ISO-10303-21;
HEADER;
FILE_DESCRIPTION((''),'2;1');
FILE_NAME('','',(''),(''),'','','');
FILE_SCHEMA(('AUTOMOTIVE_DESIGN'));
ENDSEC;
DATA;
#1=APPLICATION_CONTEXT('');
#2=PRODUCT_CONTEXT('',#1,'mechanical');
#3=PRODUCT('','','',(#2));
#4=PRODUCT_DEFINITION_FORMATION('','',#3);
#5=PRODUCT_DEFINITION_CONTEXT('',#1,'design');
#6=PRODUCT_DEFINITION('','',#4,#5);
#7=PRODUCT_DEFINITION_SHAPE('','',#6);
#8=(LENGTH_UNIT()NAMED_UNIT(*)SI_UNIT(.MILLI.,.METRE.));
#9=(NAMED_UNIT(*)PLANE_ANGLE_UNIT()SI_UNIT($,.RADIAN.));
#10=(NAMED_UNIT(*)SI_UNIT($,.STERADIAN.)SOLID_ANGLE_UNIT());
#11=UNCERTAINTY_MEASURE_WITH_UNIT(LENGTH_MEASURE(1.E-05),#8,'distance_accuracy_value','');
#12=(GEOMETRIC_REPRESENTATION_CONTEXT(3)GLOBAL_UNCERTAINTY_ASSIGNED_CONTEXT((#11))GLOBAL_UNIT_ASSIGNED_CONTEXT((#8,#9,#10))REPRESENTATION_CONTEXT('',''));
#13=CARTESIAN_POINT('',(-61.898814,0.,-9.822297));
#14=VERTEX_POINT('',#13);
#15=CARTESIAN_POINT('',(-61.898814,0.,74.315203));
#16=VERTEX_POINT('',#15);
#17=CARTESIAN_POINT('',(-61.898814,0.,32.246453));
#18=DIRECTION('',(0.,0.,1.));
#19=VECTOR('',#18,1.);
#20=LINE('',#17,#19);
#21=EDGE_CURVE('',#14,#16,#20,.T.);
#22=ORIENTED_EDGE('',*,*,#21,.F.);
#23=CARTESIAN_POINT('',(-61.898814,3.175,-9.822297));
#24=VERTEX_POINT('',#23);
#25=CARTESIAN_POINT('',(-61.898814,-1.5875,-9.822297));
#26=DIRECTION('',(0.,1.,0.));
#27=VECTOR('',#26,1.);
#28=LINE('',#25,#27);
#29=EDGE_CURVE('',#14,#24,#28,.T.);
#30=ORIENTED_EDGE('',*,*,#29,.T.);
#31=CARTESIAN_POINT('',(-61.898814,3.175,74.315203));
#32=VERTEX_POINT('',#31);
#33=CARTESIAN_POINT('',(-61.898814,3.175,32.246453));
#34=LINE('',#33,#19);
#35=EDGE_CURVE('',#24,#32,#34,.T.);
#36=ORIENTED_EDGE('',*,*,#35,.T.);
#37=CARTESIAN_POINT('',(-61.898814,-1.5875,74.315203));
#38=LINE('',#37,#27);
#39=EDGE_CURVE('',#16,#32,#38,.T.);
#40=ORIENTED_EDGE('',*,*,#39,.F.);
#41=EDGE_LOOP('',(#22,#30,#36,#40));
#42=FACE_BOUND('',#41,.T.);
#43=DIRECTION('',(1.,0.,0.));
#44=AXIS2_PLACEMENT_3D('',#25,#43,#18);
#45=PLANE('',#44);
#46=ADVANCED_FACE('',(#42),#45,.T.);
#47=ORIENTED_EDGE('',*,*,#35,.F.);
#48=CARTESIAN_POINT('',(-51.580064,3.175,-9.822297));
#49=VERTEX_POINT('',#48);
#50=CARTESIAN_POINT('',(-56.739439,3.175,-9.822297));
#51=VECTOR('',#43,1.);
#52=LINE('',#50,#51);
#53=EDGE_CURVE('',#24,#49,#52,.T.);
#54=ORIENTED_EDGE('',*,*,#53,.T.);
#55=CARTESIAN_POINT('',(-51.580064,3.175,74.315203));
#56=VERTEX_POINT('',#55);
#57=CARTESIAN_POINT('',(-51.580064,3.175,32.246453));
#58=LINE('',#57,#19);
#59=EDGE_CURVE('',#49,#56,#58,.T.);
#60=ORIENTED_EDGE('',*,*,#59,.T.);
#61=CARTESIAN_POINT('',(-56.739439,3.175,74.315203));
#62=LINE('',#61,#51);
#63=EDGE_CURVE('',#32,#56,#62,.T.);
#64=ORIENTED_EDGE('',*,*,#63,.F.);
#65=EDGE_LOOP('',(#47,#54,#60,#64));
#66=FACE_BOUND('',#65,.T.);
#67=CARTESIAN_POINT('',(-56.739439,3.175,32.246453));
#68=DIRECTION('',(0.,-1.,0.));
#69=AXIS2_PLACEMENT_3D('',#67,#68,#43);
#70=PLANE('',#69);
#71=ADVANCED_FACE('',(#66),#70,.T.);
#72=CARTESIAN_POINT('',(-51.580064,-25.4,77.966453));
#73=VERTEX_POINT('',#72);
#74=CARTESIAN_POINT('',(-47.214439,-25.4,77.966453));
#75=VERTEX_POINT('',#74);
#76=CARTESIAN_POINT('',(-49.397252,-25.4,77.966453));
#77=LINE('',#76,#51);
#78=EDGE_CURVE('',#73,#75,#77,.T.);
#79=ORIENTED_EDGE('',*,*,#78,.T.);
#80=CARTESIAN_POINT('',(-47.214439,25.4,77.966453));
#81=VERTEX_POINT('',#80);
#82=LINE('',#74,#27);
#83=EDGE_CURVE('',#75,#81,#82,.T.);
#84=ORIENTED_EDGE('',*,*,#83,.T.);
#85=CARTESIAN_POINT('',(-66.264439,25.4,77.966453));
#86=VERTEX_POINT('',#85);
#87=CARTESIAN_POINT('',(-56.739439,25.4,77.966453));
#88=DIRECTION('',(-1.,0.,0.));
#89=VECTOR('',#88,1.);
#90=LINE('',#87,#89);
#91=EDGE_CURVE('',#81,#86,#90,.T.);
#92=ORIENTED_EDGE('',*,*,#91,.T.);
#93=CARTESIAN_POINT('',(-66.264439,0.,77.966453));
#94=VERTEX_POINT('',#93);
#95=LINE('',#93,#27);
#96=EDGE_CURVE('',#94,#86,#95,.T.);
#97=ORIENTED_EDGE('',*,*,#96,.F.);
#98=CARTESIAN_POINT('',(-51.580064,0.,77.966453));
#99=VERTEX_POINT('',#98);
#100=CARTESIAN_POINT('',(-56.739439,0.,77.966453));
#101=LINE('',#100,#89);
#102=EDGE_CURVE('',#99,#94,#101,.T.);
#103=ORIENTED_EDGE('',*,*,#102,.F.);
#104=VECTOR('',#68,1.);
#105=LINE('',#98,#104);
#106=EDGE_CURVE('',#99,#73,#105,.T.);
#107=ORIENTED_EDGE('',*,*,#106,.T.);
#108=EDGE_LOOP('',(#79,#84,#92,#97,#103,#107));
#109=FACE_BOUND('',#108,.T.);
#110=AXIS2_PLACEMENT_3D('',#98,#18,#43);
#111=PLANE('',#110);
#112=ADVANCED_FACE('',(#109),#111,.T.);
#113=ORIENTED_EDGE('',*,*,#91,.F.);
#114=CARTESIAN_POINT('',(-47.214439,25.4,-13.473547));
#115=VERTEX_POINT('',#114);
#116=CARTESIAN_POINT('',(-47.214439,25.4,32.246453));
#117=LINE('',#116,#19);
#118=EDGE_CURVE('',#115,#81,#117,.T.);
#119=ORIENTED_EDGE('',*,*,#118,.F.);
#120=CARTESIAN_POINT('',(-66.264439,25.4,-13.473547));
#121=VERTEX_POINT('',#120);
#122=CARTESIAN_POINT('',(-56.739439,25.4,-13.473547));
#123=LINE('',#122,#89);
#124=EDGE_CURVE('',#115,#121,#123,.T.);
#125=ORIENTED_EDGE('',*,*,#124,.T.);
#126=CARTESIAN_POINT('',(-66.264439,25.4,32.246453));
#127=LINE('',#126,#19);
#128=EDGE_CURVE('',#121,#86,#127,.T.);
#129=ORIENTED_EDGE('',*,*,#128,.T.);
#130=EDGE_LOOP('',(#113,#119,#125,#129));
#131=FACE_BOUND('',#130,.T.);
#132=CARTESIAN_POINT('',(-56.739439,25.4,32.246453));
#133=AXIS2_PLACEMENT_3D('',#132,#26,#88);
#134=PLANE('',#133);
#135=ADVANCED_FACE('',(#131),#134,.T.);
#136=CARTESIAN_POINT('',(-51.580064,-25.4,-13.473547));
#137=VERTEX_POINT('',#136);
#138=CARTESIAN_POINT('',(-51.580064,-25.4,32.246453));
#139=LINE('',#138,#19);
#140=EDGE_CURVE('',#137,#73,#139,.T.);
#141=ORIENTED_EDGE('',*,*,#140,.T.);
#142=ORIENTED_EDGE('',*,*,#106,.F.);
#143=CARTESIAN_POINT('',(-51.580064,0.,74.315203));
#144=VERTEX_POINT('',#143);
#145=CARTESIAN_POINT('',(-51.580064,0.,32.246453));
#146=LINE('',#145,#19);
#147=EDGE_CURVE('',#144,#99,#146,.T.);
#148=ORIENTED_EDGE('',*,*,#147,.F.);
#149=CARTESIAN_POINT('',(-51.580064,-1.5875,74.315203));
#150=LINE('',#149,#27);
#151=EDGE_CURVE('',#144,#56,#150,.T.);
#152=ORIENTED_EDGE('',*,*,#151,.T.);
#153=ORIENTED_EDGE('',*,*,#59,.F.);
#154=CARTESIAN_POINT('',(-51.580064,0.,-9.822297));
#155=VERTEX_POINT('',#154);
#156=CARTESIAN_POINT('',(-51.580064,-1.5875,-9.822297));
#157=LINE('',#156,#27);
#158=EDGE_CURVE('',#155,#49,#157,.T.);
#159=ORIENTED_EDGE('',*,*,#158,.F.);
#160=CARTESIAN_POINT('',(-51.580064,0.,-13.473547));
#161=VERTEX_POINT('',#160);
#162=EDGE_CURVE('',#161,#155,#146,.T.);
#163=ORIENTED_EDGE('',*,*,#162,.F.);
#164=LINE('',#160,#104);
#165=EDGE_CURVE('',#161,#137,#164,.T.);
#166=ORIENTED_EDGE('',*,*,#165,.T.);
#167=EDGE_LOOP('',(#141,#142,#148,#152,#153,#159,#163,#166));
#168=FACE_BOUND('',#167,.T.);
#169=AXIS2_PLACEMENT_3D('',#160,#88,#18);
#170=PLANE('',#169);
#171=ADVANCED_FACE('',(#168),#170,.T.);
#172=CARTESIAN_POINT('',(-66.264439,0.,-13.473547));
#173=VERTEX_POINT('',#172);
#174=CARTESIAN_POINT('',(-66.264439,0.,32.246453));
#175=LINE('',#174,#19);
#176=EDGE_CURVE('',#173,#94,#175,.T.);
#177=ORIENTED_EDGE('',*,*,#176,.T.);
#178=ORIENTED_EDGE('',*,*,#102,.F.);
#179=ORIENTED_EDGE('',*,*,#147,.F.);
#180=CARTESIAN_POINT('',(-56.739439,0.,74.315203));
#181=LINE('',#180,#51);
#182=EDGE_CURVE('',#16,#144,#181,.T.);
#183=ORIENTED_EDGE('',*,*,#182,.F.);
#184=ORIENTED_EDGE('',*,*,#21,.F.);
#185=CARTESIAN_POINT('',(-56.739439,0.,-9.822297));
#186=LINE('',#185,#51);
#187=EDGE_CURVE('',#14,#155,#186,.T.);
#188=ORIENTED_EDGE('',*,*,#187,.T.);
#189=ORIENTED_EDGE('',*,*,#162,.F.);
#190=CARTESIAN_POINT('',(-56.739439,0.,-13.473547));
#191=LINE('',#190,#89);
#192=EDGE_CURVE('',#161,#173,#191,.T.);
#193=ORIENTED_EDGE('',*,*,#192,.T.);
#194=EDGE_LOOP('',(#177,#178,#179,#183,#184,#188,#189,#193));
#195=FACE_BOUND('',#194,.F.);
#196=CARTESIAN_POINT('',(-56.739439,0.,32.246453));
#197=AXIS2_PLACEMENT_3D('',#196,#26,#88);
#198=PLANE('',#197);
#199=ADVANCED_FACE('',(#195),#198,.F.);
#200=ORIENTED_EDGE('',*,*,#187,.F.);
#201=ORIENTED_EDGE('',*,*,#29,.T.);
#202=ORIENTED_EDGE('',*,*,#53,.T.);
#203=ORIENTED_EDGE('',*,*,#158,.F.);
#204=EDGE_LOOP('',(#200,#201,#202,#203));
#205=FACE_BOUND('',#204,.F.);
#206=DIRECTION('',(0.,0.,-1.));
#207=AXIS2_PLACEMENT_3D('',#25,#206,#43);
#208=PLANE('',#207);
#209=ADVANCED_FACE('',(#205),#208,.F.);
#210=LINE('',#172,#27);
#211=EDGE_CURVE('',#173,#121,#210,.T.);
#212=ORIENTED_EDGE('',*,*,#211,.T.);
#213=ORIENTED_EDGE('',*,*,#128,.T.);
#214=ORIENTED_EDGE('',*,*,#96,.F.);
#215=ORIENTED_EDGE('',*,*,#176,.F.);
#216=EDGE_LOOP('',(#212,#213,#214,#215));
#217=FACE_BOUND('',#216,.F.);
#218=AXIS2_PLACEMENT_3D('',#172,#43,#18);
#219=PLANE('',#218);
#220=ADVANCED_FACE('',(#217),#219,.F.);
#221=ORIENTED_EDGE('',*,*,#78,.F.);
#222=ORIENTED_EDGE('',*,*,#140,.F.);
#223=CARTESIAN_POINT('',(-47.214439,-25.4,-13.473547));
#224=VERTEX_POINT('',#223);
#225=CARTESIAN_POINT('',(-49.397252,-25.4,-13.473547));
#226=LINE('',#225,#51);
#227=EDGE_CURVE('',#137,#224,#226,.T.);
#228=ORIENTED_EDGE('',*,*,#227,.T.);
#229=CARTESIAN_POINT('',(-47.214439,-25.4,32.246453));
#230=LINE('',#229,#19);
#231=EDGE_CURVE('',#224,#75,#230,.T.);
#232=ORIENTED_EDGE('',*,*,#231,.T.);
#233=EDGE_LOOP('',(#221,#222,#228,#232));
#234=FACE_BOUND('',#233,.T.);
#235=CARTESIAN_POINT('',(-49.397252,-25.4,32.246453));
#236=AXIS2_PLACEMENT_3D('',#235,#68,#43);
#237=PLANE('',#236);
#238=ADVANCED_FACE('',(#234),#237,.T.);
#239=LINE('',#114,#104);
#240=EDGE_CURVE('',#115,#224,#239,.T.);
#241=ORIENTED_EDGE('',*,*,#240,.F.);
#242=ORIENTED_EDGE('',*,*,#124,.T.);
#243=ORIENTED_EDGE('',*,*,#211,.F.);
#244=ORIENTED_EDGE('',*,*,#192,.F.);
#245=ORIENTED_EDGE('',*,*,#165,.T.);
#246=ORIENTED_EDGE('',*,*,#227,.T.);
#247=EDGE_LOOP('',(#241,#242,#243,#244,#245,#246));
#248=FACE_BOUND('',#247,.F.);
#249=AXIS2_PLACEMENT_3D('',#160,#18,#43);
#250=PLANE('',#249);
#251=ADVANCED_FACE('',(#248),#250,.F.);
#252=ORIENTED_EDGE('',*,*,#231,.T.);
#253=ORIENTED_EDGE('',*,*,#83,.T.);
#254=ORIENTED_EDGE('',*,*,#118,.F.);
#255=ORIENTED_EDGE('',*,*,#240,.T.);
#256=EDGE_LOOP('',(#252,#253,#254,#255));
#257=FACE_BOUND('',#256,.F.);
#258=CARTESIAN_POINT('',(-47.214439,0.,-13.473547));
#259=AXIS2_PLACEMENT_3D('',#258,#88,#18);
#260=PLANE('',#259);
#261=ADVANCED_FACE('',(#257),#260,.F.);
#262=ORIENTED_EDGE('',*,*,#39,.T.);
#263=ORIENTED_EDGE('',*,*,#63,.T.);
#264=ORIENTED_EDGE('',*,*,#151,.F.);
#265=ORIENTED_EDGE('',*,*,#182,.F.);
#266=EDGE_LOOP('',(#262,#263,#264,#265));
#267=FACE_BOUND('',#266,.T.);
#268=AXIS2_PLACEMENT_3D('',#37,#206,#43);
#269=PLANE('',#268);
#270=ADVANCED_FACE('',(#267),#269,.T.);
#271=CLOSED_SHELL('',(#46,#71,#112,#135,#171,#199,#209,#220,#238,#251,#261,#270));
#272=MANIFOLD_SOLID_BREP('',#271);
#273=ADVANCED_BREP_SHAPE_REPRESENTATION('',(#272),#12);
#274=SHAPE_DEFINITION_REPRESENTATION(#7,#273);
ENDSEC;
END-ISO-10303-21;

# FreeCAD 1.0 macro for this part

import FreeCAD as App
import Part
import Sketcher
Q = App.Units.Quantity

doc = App.newDocument("Part")
params = doc.addObject("Spreadsheet::Sheet", "Params")
for row, (alias, value) in enumerate([
    ("sketch1_width", "0.40625 in"),
    ("sketch1_height", "3.3125 in"),
    ("pad1_length", "0.0625 in"),
    ("sketch2_height", "3.6 in"),
    ("sketch2_width", "0.75 in"),
    ("pad2_length", "1 in"),
    ("sketch3_width", "0.40625 in"),
    ("sketch3_height", "3.3125 in"),
    ("pocket1_length", "0.1875 in"),
    ("sketch4_height", "3.6 in"),
    ("sketch4_width", "0.171875 in"),
    ("pad3_length", "1 in"),
], start=1):
    params.set(f"A{row}", alias)
    params.set(f"B{row}", "=" + value)
    params.setAlias(f"B{row}", alias)

body = doc.addObject("PartDesign::Body", "Body")

# Sketch on XZ plane
sketch1 = doc.addObject("Sketcher::SketchObject", "Sketch")
body.addObject(sketch1)
sketch1.AttachmentSupport = (doc.XZ_Plane, [""])
sketch1.MapMode = "FlatFace"
sketch1.addGeometry([
    Part.LineSegment(App.Vector(-62, 74, 0), App.Vector(-62, -10, 0)),
    Part.LineSegment(App.Vector(-62, -10, 0), App.Vector(-52, -10, 0)),
    Part.LineSegment(App.Vector(-52, -10, 0), App.Vector(-52, 74, 0)),
    Part.LineSegment(App.Vector(-52, 74, 0), App.Vector(-62, 74, 0)),
], False)
sketch1.addConstraint([
    Sketcher.Constraint("Coincident", 0, 2, 1, 1),
    Sketcher.Constraint("Coincident", 1, 2, 2, 1),
    Sketcher.Constraint("Coincident", 2, 2, 3, 1),
    Sketcher.Constraint("Coincident", 3, 2, 0, 1),
    Sketcher.Constraint("Vertical", 0),
    Sketcher.Constraint("Horizontal", 1),
    Sketcher.Constraint("Vertical", 2),
    Sketcher.Constraint("Horizontal", 3),
    Sketcher.Constraint("DistanceX", 1, 1, 1, 2, Q("0.40625 in")),
    Sketcher.Constraint("DistanceY", 0, 2, 0, 1, Q("3.3125 in")),
    Sketcher.Constraint("DistanceX", 0, 2, -1, 1, Q("61.898814 mm")),
    Sketcher.Constraint("DistanceY", 0, 2, -1, 1, Q("9.822297 mm")),
])
sketch1.setExpression("Constraints[8]", "Params.sketch1_width")
sketch1.setExpression("Constraints[9]", "Params.sketch1_height")
pad1 = doc.addObject("PartDesign::Pad", "Pad")
body.addObject(pad1)
pad1.Profile = sketch1
pad1.setExpression("Length", "Params.pad1_length")

# Sketch on XZ plane
sketch2 = doc.addObject("Sketcher::SketchObject", "Sketch001")
body.addObject(sketch2)
sketch2.AttachmentSupport = (doc.XZ_Plane, [""])
sketch2.MapMode = "FlatFace"
sketch2.addGeometry([
    Part.LineSegment(App.Vector(-47, 78, 0), App.Vector(-47, -13, 0)),
    Part.LineSegment(App.Vector(-47, -13, 0), App.Vector(-66, -13, 0)),
    Part.LineSegment(App.Vector(-66, -13, 0), App.Vector(-66, 78, 0)),
    Part.LineSegment(App.Vector(-66, 78, 0), App.Vector(-47, 78, 0)),
], False)
sketch2.addConstraint([
    Sketcher.Constraint("Coincident", 0, 2, 1, 1),
    Sketcher.Constraint("Coincident", 1, 2, 2, 1),
    Sketcher.Constraint("Coincident", 2, 2, 3, 1),
    Sketcher.Constraint("Coincident", 3, 2, 0, 1),
    Sketcher.Constraint("Vertical", 0),
    Sketcher.Constraint("Horizontal", 1),
    Sketcher.Constraint("Vertical", 2),
    Sketcher.Constraint("Horizontal", 3),
    Sketcher.Constraint("DistanceY", 0, 2, 0, 1, Q("3.6 in")),
    Sketcher.Constraint("DistanceX", 1, 2, 1, 1, Q("0.75 in")),
    Sketcher.Constraint("DistanceX", 0, 2, -1, 1, Q("47.214439 mm")),
    Sketcher.Constraint("DistanceY", 0, 2, -1, 1, Q("13.473547 mm")),
])
sketch2.setExpression("Constraints[8]", "Params.sketch2_height")
sketch2.setExpression("Constraints[9]", "Params.sketch2_width")
pad2 = doc.addObject("PartDesign::Pad", "Pad001")
body.addObject(pad2)
pad2.Profile = sketch2
pad2.setExpression("Length", "Params.pad2_length")
pad2.Reversed = True

# Sketch on XZ plane
sketch3 = doc.addObject("Sketcher::SketchObject", "Sketch002")
body.addObject(sketch3)
sketch3.AttachmentSupport = (doc.XZ_Plane, [""])
sketch3.MapMode = "FlatFace"
sketch3.AttachmentOffset = App.Placement(App.Vector(0, 0, 0.0625 * 25.4), App.Rotation())
sketch3.addGeometry([
    Part.LineSegment(App.Vector(-62, 74, 0), App.Vector(-62, -10, 0)),
    Part.LineSegment(App.Vector(-62, -10, 0), App.Vector(-52, -10, 0)),
    Part.LineSegment(App.Vector(-52, -10, 0), App.Vector(-52, 74, 0)),
    Part.LineSegment(App.Vector(-52, 74, 0), App.Vector(-62, 74, 0)),
], False)
sketch3.addConstraint([
    Sketcher.Constraint("Coincident", 0, 2, 1, 1),
    Sketcher.Constraint("Coincident", 1, 2, 2, 1),
    Sketcher.Constraint("Coincident", 2, 2, 3, 1),
    Sketcher.Constraint("Coincident", 3, 2, 0, 1),
    Sketcher.Constraint("Vertical", 0),
    Sketcher.Constraint("Horizontal", 1),
    Sketcher.Constraint("Vertical", 2),
    Sketcher.Constraint("Horizontal", 3),
    Sketcher.Constraint("DistanceX", 1, 1, 1, 2, Q("0.40625 in")),
    Sketcher.Constraint("DistanceY", 0, 2, 0, 1, Q("3.3125 in")),
    Sketcher.Constraint("DistanceX", 0, 2, -1, 1, Q("61.898814 mm")),
    Sketcher.Constraint("DistanceY", 0, 2, -1, 1, Q("9.822297 mm")),
])
sketch3.setExpression("Constraints[8]", "Params.sketch3_width")
sketch3.setExpression("Constraints[9]", "Params.sketch3_height")
pocket1 = doc.addObject("PartDesign::Pocket", "Pocket")
body.addObject(pocket1)
pocket1.Profile = sketch3
pocket1.setExpression("Length", "Params.pocket1_length")

# Sketch on XZ plane
sketch4 = doc.addObject("Sketcher::SketchObject", "Sketch003")
body.addObject(sketch4)
sketch4.AttachmentSupport = (doc.XZ_Plane, [""])
sketch4.MapMode = "FlatFace"
sketch4.addGeometry([
    Part.LineSegment(App.Vector(-51.6, 78, 0), App.Vector(-51.6, -13.5, 0)),
    Part.LineSegment(App.Vector(-51.6, -13.5, 0), App.Vector(-47.2, -13.5, 0)),
    Part.LineSegment(App.Vector(-47.2, -13.5, 0), App.Vector(-47.2, 78, 0)),
    Part.LineSegment(App.Vector(-47.2, 78, 0), App.Vector(-51.6, 78, 0)),
], False)
sketch4.addConstraint([
    Sketcher.Constraint("Coincident", 0, 2, 1, 1),
    Sketcher.Constraint("Coincident", 1, 2, 2, 1),
    Sketcher.Constraint("Coincident", 2, 2, 3, 1),
    Sketcher.Constraint("Coincident", 3, 2, 0, 1),
    Sketcher.Constraint("Vertical", 0),
    Sketcher.Constraint("Horizontal", 1),
    Sketcher.Constraint("Vertical", 2),
    Sketcher.Constraint("Horizontal", 3),
    Sketcher.Constraint("DistanceY", 0, 2, 0, 1, Q("3.6 in")),
    Sketcher.Constraint("DistanceX", 1, 1, 1, 2, Q("0.171875 in")),
    Sketcher.Constraint("DistanceX", 1, 2, -1, 1, Q("47.214439 mm")),
    Sketcher.Constraint("DistanceY", 0, 2, -1, 1, Q("13.473547 mm")),
])
sketch4.setExpression("Constraints[8]", "Params.sketch4_height")
sketch4.setExpression("Constraints[9]", "Params.sketch4_width")
pad3 = doc.addObject("PartDesign::Pad", "Pad002")
body.addObject(pad3)
pad3.Profile = sketch4
pad3.setExpression("Length", "Params.pad3_length")

doc.recompute()
